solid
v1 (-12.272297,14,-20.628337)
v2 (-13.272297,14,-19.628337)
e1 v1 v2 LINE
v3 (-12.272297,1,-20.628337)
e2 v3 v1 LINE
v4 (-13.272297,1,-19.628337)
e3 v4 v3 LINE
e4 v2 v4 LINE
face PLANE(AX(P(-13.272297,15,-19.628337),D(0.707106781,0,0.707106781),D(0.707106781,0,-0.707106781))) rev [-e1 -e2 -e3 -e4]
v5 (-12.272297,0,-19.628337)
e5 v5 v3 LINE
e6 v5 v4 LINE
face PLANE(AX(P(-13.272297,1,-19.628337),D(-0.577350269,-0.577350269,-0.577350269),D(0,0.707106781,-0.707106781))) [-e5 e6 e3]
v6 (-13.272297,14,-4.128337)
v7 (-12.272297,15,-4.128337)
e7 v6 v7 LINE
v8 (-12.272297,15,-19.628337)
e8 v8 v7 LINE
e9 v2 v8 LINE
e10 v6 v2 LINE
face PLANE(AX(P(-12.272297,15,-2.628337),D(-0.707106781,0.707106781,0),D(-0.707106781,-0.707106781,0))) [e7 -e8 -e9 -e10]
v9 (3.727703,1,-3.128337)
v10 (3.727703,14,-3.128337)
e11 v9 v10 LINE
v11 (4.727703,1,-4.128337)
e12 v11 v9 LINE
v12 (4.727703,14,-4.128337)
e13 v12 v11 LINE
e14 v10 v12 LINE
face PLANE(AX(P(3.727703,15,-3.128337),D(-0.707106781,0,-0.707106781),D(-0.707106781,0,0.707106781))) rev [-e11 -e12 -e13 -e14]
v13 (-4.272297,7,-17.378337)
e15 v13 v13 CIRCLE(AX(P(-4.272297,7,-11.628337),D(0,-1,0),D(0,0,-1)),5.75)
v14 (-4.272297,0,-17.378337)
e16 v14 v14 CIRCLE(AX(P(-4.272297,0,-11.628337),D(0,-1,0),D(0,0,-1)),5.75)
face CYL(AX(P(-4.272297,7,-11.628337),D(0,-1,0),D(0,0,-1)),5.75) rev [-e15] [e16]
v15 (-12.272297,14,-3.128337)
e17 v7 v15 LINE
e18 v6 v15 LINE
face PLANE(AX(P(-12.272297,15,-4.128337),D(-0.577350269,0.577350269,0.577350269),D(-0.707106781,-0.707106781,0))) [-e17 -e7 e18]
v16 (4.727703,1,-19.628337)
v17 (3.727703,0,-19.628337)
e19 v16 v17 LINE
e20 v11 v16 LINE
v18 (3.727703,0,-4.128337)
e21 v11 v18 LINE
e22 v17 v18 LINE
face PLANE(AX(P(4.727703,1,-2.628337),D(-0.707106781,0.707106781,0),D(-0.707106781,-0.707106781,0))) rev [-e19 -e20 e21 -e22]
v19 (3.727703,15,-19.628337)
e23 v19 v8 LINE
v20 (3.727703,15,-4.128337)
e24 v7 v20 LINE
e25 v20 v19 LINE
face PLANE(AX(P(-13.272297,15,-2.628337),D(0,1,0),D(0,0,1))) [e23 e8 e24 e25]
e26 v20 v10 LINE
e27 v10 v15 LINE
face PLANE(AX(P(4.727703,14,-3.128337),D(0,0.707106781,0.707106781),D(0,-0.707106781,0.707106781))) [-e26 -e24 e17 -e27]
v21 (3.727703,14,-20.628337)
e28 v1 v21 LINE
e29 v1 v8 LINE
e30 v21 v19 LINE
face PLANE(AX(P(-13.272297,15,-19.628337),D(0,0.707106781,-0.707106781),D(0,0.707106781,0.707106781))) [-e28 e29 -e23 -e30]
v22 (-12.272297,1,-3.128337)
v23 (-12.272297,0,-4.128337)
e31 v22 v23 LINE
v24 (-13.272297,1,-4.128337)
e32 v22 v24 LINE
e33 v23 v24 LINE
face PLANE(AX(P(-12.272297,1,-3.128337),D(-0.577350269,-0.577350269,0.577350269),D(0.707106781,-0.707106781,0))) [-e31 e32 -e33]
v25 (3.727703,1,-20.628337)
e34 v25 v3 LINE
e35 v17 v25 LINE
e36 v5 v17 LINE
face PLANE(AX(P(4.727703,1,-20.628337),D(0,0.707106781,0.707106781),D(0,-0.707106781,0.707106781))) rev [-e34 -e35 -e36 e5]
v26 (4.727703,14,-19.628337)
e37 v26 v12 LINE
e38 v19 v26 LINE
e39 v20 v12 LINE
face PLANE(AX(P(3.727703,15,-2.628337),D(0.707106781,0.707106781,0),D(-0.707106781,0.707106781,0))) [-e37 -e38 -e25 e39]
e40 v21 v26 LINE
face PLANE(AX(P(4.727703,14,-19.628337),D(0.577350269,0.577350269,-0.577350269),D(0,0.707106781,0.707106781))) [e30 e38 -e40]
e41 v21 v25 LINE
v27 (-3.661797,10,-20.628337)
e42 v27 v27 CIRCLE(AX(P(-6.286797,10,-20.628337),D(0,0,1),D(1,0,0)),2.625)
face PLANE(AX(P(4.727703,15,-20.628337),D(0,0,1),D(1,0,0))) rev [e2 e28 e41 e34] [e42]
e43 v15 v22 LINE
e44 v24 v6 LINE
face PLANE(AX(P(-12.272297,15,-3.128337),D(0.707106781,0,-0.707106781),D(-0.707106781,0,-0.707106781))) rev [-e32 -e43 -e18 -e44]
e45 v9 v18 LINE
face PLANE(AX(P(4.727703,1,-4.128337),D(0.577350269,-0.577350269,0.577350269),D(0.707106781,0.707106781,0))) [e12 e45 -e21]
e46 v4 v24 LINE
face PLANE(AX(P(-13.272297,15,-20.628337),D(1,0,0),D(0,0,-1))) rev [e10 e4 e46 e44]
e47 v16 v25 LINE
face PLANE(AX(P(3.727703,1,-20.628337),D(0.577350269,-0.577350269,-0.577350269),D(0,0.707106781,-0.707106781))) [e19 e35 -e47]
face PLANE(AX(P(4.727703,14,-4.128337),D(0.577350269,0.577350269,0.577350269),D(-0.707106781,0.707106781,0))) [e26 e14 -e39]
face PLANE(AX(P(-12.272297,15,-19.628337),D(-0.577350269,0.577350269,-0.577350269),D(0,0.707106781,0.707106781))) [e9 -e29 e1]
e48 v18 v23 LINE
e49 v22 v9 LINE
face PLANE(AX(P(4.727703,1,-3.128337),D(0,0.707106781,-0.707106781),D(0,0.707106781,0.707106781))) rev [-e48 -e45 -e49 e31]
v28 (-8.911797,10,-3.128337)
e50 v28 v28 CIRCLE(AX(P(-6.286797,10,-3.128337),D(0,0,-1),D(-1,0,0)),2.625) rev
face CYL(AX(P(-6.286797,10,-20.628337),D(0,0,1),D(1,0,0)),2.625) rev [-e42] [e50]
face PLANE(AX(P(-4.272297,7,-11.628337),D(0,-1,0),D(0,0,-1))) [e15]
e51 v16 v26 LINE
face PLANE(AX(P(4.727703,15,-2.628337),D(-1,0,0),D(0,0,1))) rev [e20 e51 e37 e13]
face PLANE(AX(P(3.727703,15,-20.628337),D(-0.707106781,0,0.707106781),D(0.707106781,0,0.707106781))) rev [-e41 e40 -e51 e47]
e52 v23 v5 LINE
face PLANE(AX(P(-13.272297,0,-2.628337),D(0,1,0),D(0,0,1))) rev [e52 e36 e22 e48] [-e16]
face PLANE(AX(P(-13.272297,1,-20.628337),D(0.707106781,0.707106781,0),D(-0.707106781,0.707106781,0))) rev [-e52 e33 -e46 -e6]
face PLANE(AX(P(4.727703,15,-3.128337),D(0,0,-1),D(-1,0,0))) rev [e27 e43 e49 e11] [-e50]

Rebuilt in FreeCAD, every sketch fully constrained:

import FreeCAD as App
import Part
import Sketcher
from FreeCAD import Vector
Q = App.Units.Quantity


def edges_at(feature, points):
    """Names of the edges that pass closest to the given points."""
    edges = feature.Shape.Edges
    near = lambda p: min(range(len(edges)), key=lambda i: edges[i].distToShape(Part.Vertex(*p))[0])
    return sorted({f"Edge{near(p) + 1}" for p in points})

doc = App.newDocument("Part")
params = doc.addObject("Spreadsheet::Sheet", "Params")
for row, (alias, value) in enumerate([
    ("sketch1_width", "18 mm"),
    ("pad1_length", "15 mm"),
    ("sketch2_diameter", "5.25 mm"),
    ("sketch3_diameter", "11.5 mm"),
    ("pocket2_length", "7 mm"),
    ("sketch4_width", "18 mm"),
    ("sketch4_height", "15 mm"),
    ("pocket3_length", "0.5 mm"),
    ("chamfer_size", "1 mm"),
], start=1):
    params.set(f"A{row}", alias)
    params.set(f"B{row}", "=" + value)
    params.setAlias(f"B{row}", alias)

body = doc.addObject("PartDesign::Body", "Body")

# Sketch on XZ plane
sketch1 = body.newObject("Sketcher::SketchObject", "Sketch")
sketch1.AttachmentSupport = (doc.getObject("XZ_Plane"), [""])
sketch1.MapMode = "FlatFace"
sketch1.addGeometry(Part.LineSegment(Vector(-13.272297, -20.628337, 0), Vector(-13.272297, -2.628337, 0)), False)
sketch1.addGeometry(Part.LineSegment(Vector(-13.272297, -2.628337, 0), Vector(4.727703, -2.628337, 0)), False)
sketch1.addGeometry(Part.LineSegment(Vector(4.727703, -2.628337, 0), Vector(4.727703, -20.628337, 0)), False)
sketch1.addGeometry(Part.LineSegment(Vector(4.727703, -20.628337, 0), Vector(-13.272297, -20.628337, 0)), False)
sketch1.addConstraint(Sketcher.Constraint("Coincident", 0, 2, 1, 1))
sketch1.addConstraint(Sketcher.Constraint("Coincident", 1, 2, 2, 1))
sketch1.addConstraint(Sketcher.Constraint("Coincident", 2, 2, 3, 1))
sketch1.addConstraint(Sketcher.Constraint("Coincident", 3, 2, 0, 1))
sketch1.addConstraint(Sketcher.Constraint("Vertical", 0))
sketch1.addConstraint(Sketcher.Constraint("Horizontal", 1))
sketch1.addConstraint(Sketcher.Constraint("Vertical", 2))
sketch1.addConstraint(Sketcher.Constraint("Horizontal", 3))
sketch1.addConstraint(Sketcher.Constraint("Equal", 3, 0))
sketch1.addConstraint(Sketcher.Constraint("DistanceX", 1, 1, 1, 2, Q("18 mm")))
sketch1.addConstraint(Sketcher.Constraint("DistanceX", 0, 2, -1, 1, Q("13.272297 mm")))
sketch1.addConstraint(Sketcher.Constraint("DistanceY", 0, 2, -1, 1, Q("2.628337 mm")))
sketch1.setExpression("Constraints[9]", "Params.sketch1_width")
pad1 = body.newObject("PartDesign::Pad", "Pad")
pad1.Profile = sketch1
pad1.setExpression("Length", "Params.pad1_length")
pad1.Reversed = True

# Sketch on XY plane
sketch2 = body.newObject("Sketcher::SketchObject", "Sketch001")
sketch2.AttachmentSupport = (doc.getObject("XY_Plane"), [""])
sketch2.MapMode = "FlatFace"
sketch2.AttachmentOffset = App.Placement(Vector(0, 0, -2.628337), App.Rotation())
sketch2.addGeometry(Part.Circle(Vector(-6.286797, 10, 0), Vector(0, 0, 1), 2.625), False)
sketch2.addConstraint(Sketcher.Constraint("Diameter", 0, Q("5.25 mm")))
sketch2.addConstraint(Sketcher.Constraint("DistanceY", -1, 1, 0, 3, Q("10 mm")))
sketch2.addConstraint(Sketcher.Constraint("DistanceX", 0, 3, -1, 1, Q("6.286797 mm")))
sketch2.setExpression("Constraints[0]", "Params.sketch2_diameter")
pocket1 = body.newObject("PartDesign::Pocket", "Pocket")
pocket1.Profile = sketch2
pocket1.Type = "ThroughAll"

# Sketch on XZ plane
sketch3 = body.newObject("Sketcher::SketchObject", "Sketch002")
sketch3.AttachmentSupport = (doc.getObject("XZ_Plane"), [""])
sketch3.MapMode = "FlatFace"
sketch3.addGeometry(Part.Circle(Vector(-4.272297, -11.628337, 0), Vector(0, 0, 1), 5.75), False)
sketch3.addConstraint(Sketcher.Constraint("Diameter", 0, Q("11.5 mm")))
sketch3.addConstraint(Sketcher.Constraint("DistanceX", 0, 3, -1, 1, Q("4.272297 mm")))
sketch3.addConstraint(Sketcher.Constraint("DistanceY", 0, 3, -1, 1, Q("11.628337 mm")))
sketch3.setExpression("Constraints[0]", "Params.sketch3_diameter")
pocket2 = body.newObject("PartDesign::Pocket", "Pocket001")
pocket2.Profile = sketch3
pocket2.setExpression("Length", "Params.pocket2_length")

# Sketch on XY plane
sketch4 = body.newObject("Sketcher::SketchObject", "Sketch003")
sketch4.AttachmentSupport = (doc.getObject("XY_Plane"), [""])
sketch4.MapMode = "FlatFace"
sketch4.AttachmentOffset = App.Placement(Vector(0, 0, -2.628337), App.Rotation())
sketch4.addGeometry(Part.LineSegment(Vector(-13.272297, 15, 0), Vector(-13.272297, 0, 0)), False)
sketch4.addGeometry(Part.LineSegment(Vector(-13.272297, 0, 0), Vector(4.727703, 0, 0)), False)
sketch4.addGeometry(Part.LineSegment(Vector(4.727703, 0, 0), Vector(4.727703, 15, 0)), False)
sketch4.addGeometry(Part.LineSegment(Vector(4.727703, 15, 0), Vector(-13.272297, 15, 0)), False)
sketch4.addConstraint(Sketcher.Constraint("Coincident", 0, 2, 1, 1))
sketch4.addConstraint(Sketcher.Constraint("Coincident", 1, 2, 2, 1))
sketch4.addConstraint(Sketcher.Constraint("Coincident", 2, 2, 3, 1))
sketch4.addConstraint(Sketcher.Constraint("Coincident", 3, 2, 0, 1))
sketch4.addConstraint(Sketcher.Constraint("Vertical", 0))
sketch4.addConstraint(Sketcher.Constraint("Horizontal", 1))
sketch4.addConstraint(Sketcher.Constraint("Vertical", 2))
sketch4.addConstraint(Sketcher.Constraint("Horizontal", 3))
sketch4.addConstraint(Sketcher.Constraint("PointOnObject", 0, 2, -1))
sketch4.addConstraint(Sketcher.Constraint("DistanceX", 1, 1, 1, 2, Q("18 mm")))
sketch4.addConstraint(Sketcher.Constraint("DistanceY", 0, 2, 0, 1, Q("15 mm")))
sketch4.addConstraint(Sketcher.Constraint("DistanceX", 0, 2, -1, 1, Q("13.272297 mm")))
sketch4.setExpression("Constraints[9]", "Params.sketch4_width")
sketch4.setExpression("Constraints[10]", "Params.sketch4_height")
pocket3 = body.newObject("PartDesign::Pocket", "Pocket002")
pocket3.Profile = sketch4
pocket3.setExpression("Length", "Params.pocket3_length")
doc.recompute()

chamfer = body.newObject("PartDesign::Chamfer", "Chamfer")
chamfer.Base = (pocket3, edges_at(pocket3, [
    (-4.272, 15, -20.628),
    (4.728, 0, -11.878),
    (4.728, 15, -11.878),
    (-4.272, 15, -3.128),
    (4.728, 7.5, -3.128),
    (-4.272, 0, -3.128),
    (-13.272, 7.5, -3.128),
    (-13.272, 15, -11.878),
    (-4.272, 0, -20.628),
    (-13.272, 0, -11.878),
    (-13.272, 7.5, -20.628),
    (4.728, 7.5, -20.628),
]))
chamfer.setExpression("Size", "Params.chamfer_size")

doc.recompute()
